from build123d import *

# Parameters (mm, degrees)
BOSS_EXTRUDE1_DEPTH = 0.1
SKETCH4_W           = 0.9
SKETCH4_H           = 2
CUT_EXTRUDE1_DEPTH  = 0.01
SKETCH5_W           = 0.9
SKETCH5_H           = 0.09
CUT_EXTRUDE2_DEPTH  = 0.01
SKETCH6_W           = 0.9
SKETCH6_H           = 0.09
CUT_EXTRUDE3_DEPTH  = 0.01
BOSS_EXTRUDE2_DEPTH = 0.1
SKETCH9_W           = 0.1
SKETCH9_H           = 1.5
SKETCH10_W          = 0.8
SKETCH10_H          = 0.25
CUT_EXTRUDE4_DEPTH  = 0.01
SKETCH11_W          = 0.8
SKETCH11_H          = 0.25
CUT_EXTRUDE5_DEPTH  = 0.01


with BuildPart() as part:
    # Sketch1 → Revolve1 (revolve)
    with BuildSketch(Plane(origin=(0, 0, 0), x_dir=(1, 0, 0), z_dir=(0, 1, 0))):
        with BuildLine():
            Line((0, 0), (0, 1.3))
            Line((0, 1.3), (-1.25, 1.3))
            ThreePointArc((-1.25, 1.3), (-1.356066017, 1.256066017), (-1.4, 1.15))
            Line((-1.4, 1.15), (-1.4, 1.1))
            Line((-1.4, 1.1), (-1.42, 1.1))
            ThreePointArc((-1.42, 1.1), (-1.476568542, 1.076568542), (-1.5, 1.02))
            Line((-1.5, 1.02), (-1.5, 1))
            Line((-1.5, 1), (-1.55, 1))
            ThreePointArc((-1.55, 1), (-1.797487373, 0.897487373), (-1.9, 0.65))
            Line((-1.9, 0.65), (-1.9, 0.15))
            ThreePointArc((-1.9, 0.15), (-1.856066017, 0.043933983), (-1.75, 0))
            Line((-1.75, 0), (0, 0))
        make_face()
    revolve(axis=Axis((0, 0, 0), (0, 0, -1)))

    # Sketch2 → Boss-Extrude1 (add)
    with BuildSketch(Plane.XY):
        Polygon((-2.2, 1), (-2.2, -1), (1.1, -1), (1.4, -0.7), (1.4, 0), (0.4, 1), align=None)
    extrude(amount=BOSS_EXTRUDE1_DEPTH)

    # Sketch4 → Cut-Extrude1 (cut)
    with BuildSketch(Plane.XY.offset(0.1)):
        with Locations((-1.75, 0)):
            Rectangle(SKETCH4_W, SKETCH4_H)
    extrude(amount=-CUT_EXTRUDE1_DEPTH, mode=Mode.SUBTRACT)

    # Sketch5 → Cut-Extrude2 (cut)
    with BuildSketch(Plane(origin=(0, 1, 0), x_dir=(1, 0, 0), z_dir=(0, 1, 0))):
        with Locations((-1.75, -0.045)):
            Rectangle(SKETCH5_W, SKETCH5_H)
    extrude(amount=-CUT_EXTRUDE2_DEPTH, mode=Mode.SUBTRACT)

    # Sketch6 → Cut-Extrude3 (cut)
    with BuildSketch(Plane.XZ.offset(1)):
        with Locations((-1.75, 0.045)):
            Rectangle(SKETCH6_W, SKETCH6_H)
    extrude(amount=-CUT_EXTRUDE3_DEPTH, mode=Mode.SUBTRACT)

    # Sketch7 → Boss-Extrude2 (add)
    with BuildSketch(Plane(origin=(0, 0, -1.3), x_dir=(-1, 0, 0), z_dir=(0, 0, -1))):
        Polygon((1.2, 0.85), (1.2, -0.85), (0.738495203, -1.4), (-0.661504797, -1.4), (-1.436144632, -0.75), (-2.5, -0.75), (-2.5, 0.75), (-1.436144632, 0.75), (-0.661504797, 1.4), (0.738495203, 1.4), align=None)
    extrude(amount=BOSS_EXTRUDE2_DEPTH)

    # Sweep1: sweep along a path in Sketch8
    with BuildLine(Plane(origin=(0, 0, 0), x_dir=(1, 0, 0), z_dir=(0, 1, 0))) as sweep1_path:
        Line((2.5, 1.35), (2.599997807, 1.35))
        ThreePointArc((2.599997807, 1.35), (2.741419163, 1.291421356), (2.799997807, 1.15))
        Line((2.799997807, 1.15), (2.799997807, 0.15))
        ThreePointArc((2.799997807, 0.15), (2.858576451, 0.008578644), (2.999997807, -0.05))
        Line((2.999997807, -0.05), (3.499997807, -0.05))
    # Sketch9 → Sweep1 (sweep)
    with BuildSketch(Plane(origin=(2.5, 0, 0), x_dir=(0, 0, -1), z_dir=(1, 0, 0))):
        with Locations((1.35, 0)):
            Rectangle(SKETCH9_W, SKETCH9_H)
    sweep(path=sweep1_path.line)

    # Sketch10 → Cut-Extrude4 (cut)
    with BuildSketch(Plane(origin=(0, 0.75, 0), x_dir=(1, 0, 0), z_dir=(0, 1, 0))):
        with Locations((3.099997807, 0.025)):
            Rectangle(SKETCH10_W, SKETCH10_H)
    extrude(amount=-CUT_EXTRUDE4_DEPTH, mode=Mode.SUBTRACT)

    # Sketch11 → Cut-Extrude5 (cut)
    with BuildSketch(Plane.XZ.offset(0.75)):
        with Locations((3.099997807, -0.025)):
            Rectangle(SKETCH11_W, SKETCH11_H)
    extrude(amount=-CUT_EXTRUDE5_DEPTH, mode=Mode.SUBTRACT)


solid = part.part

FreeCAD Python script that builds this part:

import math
import FreeCAD as App
import Part
import Sketcher
Q = App.Units.Quantity


def add_polygon(sketch, points):
    """Adds a closed chain of lines whose ends are joined by coincident constraints."""
    first, n = sketch.GeometryCount, len(points)
    for a, b in zip(points, points[1:] + points[:1]):
        sketch.addGeometry(Part.LineSegment(App.Vector(*a, 0), App.Vector(*b, 0)), False)
    for i in range(n):
        sketch.addConstraint(Sketcher.Constraint("Coincident", first + i, 2, first + (i + 1) % n, 1))

doc = App.newDocument("Part")
body = doc.addObject("PartDesign::Body", "Body")

sketch1 = doc.addObject("Sketcher::SketchObject", "Sketch")
body.addObject(sketch1)
sketch1.AttachmentSupport = (doc.XZ_Plane, [""])
sketch1.MapMode = "FlatFace"
sketch1.addGeometry([
    Part.LineSegment(App.Vector(0, 0, 0), App.Vector(0, -1.3, 0)),
    Part.LineSegment(App.Vector(0, -1.3, 0), App.Vector(-1.25, -1.3, 0)),
    Part.ArcOfCircle(Part.Circle(App.Vector(-1.25, -1.15, 0), App.Vector(0, 0, 1), 0.15), math.radians(-180), math.radians(-90)),
    Part.LineSegment(App.Vector(-1.4, -1.15, 0), App.Vector(-1.4, -1.1, 0)),
    Part.LineSegment(App.Vector(-1.4, -1.1, 0), App.Vector(-1.42, -1.1, 0)),
    Part.ArcOfCircle(Part.Circle(App.Vector(-1.42, -1.02, 0), App.Vector(0, 0, 1), 0.08), math.radians(-180), math.radians(-90)),
    Part.LineSegment(App.Vector(-1.5, -1.02, 0), App.Vector(-1.5, -1, 0)),
    Part.LineSegment(App.Vector(-1.5, -1, 0), App.Vector(-1.55, -1, 0)),
    Part.ArcOfCircle(Part.Circle(App.Vector(-1.55, -0.65, 0), App.Vector(0, 0, 1), 0.35), math.radians(-180), math.radians(-90)),
    Part.LineSegment(App.Vector(-1.9, -0.65, 0), App.Vector(-1.9, -0.15, 0)),
    Part.ArcOfCircle(Part.Circle(App.Vector(-1.75, -0.15, 0), App.Vector(0, 0, 1), 0.15), math.radians(90), math.radians(180)),
    Part.LineSegment(App.Vector(-1.75, 0, 0), App.Vector(0, 0, 0)),
], False)
sketch1.addConstraint([
    Sketcher.Constraint("Coincident", 0, 2, 1, 1),
    Sketcher.Constraint("Tangent", 1, 2, 2, 2),
    Sketcher.Constraint("Tangent", 2, 1, 3, 1),
    Sketcher.Constraint("Coincident", 3, 2, 4, 1),
    Sketcher.Constraint("Tangent", 4, 2, 5, 2),
    Sketcher.Constraint("Tangent", 5, 1, 6, 1),
    Sketcher.Constraint("Coincident", 6, 2, 7, 1),
    Sketcher.Constraint("Tangent", 7, 2, 8, 2),
    Sketcher.Constraint("Tangent", 8, 1, 9, 1),
    Sketcher.Constraint("Tangent", 9, 2, 10, 2),
    Sketcher.Constraint("Tangent", 10, 1, 11, 1),
    Sketcher.Constraint("Coincident", 11, 2, 0, 1),
    Sketcher.Constraint("Vertical", 0),
    Sketcher.Constraint("Horizontal", 1),
    Sketcher.Constraint("Vertical", 3),
    Sketcher.Constraint("Horizontal", 4),
    Sketcher.Constraint("Vertical", 6),
    Sketcher.Constraint("Horizontal", 7),
    Sketcher.Constraint("Vertical", 9),
    Sketcher.Constraint("Horizontal", 11),
    Sketcher.Constraint("Coincident", 11, 2, -1, 1),
    Sketcher.Constraint("Equal", 2, 10),
    Sketcher.Constraint("Equal", 7, 3),
    Sketcher.Constraint("Equal", 4, 6),
    Sketcher.Constraint("Radius", 2, Q("0.15 mm")),
    Sketcher.Constraint("Radius", 5, Q("0.08 mm")),
    Sketcher.Constraint("Radius", 8, Q("0.35 mm")),
    Sketcher.Constraint("DistanceY", 0, 2, 0, 1, Q("1.3 mm")),
    Sketcher.Constraint("DistanceY", 9, 1, 9, 2, Q("0.5 mm")),
    Sketcher.Constraint("DistanceX", 1, 2, 1, 1, Q("1.25 mm")),
    Sketcher.Constraint("DistanceX", 4, 2, 4, 1, Q("0.02 mm")),
])
revolution = doc.addObject("PartDesign::Revolution", "Revolution")
body.addObject(revolution)
revolution.Profile = sketch1
revolution.ReferenceAxis = (sketch1, ["V_Axis"])
revolution.Angle = 360

sketch2 = doc.addObject("Sketcher::SketchObject", "Sketch001")
body.addObject(sketch2)
sketch2.AttachmentSupport = (doc.XY_Plane, [""])
sketch2.MapMode = "FlatFace"
add_polygon(sketch2, [(-2.2, 1), (-2.2, -1), (1.1, -1), (1.4, -0.7), (1.4, 0), (0.4, 1)])
sketch2.addConstraint([
    Sketcher.Constraint("Vertical", 0),
    Sketcher.Constraint("Horizontal", 1),
    Sketcher.Constraint("Vertical", 3),
    Sketcher.Constraint("Horizontal", 5),
    Sketcher.Constraint("PointOnObject", 3, 2, -1),
    Sketcher.Constraint("Perpendicular", 2, 4),
    Sketcher.Constraint("DistanceY", 0, 2, 0, 1, Q("2 mm")),
    Sketcher.Constraint("Angle", 2, Q("45 deg")),
    Sketcher.Constraint("DistanceX", 1, 1, 1, 2, Q("3.3 mm")),
    Sketcher.Constraint("DistanceX", 5, 2, 5, 1, Q("2.6 mm")),
    Sketcher.Constraint("DistanceY", 3, 1, 3, 2, Q("0.7 mm")),
    Sketcher.Constraint("DistanceX", 0, 2, -1, 1, Q("2.2 mm")),
])
pad1 = doc.addObject("PartDesign::Pad", "Pad")
body.addObject(pad1)
pad1.Profile = sketch2
pad1.Length = 0.1

sketch3 = doc.addObject("Sketcher::SketchObject", "Sketch002")
body.addObject(sketch3)
sketch3.AttachmentSupport = (doc.XY_Plane, [""])
sketch3.MapMode = "FlatFace"
sketch3.AttachmentOffset = App.Placement(App.Vector(0, 0, 0.1), App.Rotation())
add_polygon(sketch3, [(-2.2, 1), (-2.2, -1), (-1.3, -1), (-1.3, 1)])
sketch3.addConstraint([
    Sketcher.Constraint("Vertical", 0),
    Sketcher.Constraint("Horizontal", 1),
    Sketcher.Constraint("Vertical", 2),
    Sketcher.Constraint("Horizontal", 3),
    Sketcher.Constraint("DistanceY", 0, 2, 0, 1, Q("2 mm")),
    Sketcher.Constraint("DistanceX", 1, 1, 1, 2, Q("0.9 mm")),
    Sketcher.Constraint("DistanceY", 0, 2, -1, 1, Q("1 mm")),
    Sketcher.Constraint("DistanceX", 0, 2, -1, 1, Q("2.2 mm")),
])
pocket1 = doc.addObject("PartDesign::Pocket", "Pocket")
body.addObject(pocket1)
pocket1.Profile = sketch3
pocket1.Length = 0.01

sketch4 = doc.addObject("Sketcher::SketchObject", "Sketch003")
body.addObject(sketch4)
sketch4.AttachmentSupport = (doc.XZ_Plane, [""])
sketch4.MapMode = "FlatFace"
sketch4.AttachmentOffset = App.Placement(App.Vector(0, 0, -1), App.Rotation())
add_polygon(sketch4, [(-2.2, 0), (-2.2, 0.09), (-1.3, 0.09), (-1.3, 0)])
sketch4.addConstraint([
    Sketcher.Constraint("Vertical", 0),
    Sketcher.Constraint("Horizontal", 1),
    Sketcher.Constraint("Vertical", 2),
    Sketcher.Constraint("Horizontal", 3),
    Sketcher.Constraint("PointOnObject", 2, 2, -1),
    Sketcher.Constraint("DistanceX", 1, 1, 1, 2, Q("0.9 mm")),
    Sketcher.Constraint("DistanceY", 0, 1, 0, 2, Q("0.09 mm")),
    Sketcher.Constraint("DistanceX", 0, 2, -1, 1, Q("2.2 mm")),
])
pocket2 = doc.addObject("PartDesign::Pocket", "Pocket001")
body.addObject(pocket2)
pocket2.Profile = sketch4
pocket2.Length = 0.01
pocket2.Reversed = True

sketch5 = doc.addObject("Sketcher::SketchObject", "Sketch004")
body.addObject(sketch5)
sketch5.AttachmentSupport = (doc.XZ_Plane, [""])
sketch5.MapMode = "FlatFace"
sketch5.AttachmentOffset = App.Placement(App.Vector(0, 0, 1), App.Rotation())
add_polygon(sketch5, [(-2.2, 0.09), (-2.2, 0), (-1.3, 0), (-1.3, 0.09)])
sketch5.addConstraint([
    Sketcher.Constraint("Vertical", 0),
    Sketcher.Constraint("Horizontal", 1),
    Sketcher.Constraint("Vertical", 2),
    Sketcher.Constraint("Horizontal", 3),
    Sketcher.Constraint("PointOnObject", 0, 2, -1),
    Sketcher.Constraint("DistanceX", 1, 1, 1, 2, Q("0.9 mm")),
    Sketcher.Constraint("DistanceY", 0, 2, 0, 1, Q("0.09 mm")),
    Sketcher.Constraint("DistanceX", 0, 2, -1, 1, Q("2.2 mm")),
])
pocket3 = doc.addObject("PartDesign::Pocket", "Pocket002")
body.addObject(pocket3)
pocket3.Profile = sketch5
pocket3.Length = 0.01

sketch6 = doc.addObject("Sketcher::SketchObject", "Sketch005")
body.addObject(sketch6)
sketch6.AttachmentSupport = (doc.XY_Plane, [""])
sketch6.MapMode = "FlatFace"
sketch6.AttachmentOffset = App.Placement(App.Vector(0, 0, -1.3), App.Rotation())
add_polygon(sketch6, [(-1.2, -0.8), (-1.2, 0.8), (-0.7, 1.4), (0.7, 1.4), (1.4, 0.8), (2.5, 0.8), (2.5, -0.8), (1.4, -0.8), (0.7, -1.4), (-0.7, -1.4)])
sketch6.addConstraint([
    Sketcher.Constraint("Vertical", 0),
    Sketcher.Constraint("Horizontal", 2),
    Sketcher.Constraint("Horizontal", 4),
    Sketcher.Constraint("Vertical", 5),
    Sketcher.Constraint("Horizontal", 6),
    Sketcher.Constraint("Horizontal", 8),
    Sketcher.Constraint("Symmetric", 3, 2, 6, 2, -1),
    Sketcher.Constraint("Symmetric", 2, 2, 7, 2, -1),
    Sketcher.Constraint("Perpendicular", 1, 3),
    Sketcher.Constraint("Perpendicular", 7, 9),
    Sketcher.Constraint("Vertical", 1, 2, 8, 2),
    Sketcher.Constraint("Angle", 1, Q("50 deg")),
    Sketcher.Constraint("DistanceX", 2, 1, 2, 2, Q("1.4 mm")),
    Sketcher.Constraint("DistanceY", 0, 1, 0, 2, Q("1.7 mm")),
    Sketcher.Constraint("DistanceY", 5, 2, 5, 1, Q("1.5 mm")),
    Sketcher.Constraint("DistanceX", 0, 2, -1, 1, Q("1.2 mm")),
    Sketcher.Constraint("DistanceY", -1, 1, 1, 2, Q("1.4 mm")),
    Sketcher.Constraint("DistanceX", -1, 1, 4, 2, Q("2.5 mm")),
])
pad2 = doc.addObject("PartDesign::Pad", "Pad001")
body.addObject(pad2)
pad2.Profile = sketch6
pad2.Length = 0.1
pad2.Reversed = True

sketch7 = doc.addObject("Sketcher::SketchObject", "Sketch006")
body.addObject(sketch7)
sketch7.AttachmentSupport = (doc.YZ_Plane, [""])
sketch7.MapMode = "FlatFace"
sketch7.AttachmentOffset = App.Placement(App.Vector(0, 0, 2.5), App.Rotation())
add_polygon(sketch7, [(0.75, -1.3), (-0.75, -1.3), (-0.75, -1.4), (0.75, -1.4)])
sketch7.addConstraint([
    Sketcher.Constraint("Horizontal", 0),
    Sketcher.Constraint("Vertical", 1),
    Sketcher.Constraint("Horizontal", 2),
    Sketcher.Constraint("Vertical", 3),
    Sketcher.Constraint("DistanceX", 0, 2, 0, 1, Q("1.5 mm")),
    Sketcher.Constraint("DistanceY", 1, 2, 1, 1, Q("0.1 mm")),
    Sketcher.Constraint("DistanceY", 0, 2, -1, 1, Q("1.3 mm")),
    Sketcher.Constraint("DistanceX", 0, 2, -1, 1, Q("0.75 mm")),
])

sketch8 = doc.addObject("Sketcher::SketchObject", "Sketch007")
body.addObject(sketch8)
sketch8.AttachmentSupport = (doc.XZ_Plane, [""])
sketch8.MapMode = "FlatFace"
sketch8.addGeometry([
    Part.LineSegment(App.Vector(2.5, -1.35, 0), App.Vector(2.6, -1.35, 0)),
    Part.ArcOfCircle(Part.Circle(App.Vector(2.6, -1.15, 0), App.Vector(0, 0, 1), 0.2), math.radians(-90), math.radians(0)),
    Part.LineSegment(App.Vector(2.8, -1.15, 0), App.Vector(2.8, -0.15, 0)),
    Part.ArcOfCircle(Part.Circle(App.Vector(3, -0.15, 0), App.Vector(0, 0, 1), 0.2), math.radians(90), math.radians(180)),
    Part.LineSegment(App.Vector(3, 0.05, 0), App.Vector(3.5, 0.05, 0)),
], False)
sketch8.addConstraint([
    Sketcher.Constraint("Tangent", 0, 2, 1, 1),
    Sketcher.Constraint("Tangent", 1, 2, 2, 1),
    Sketcher.Constraint("Tangent", 2, 2, 3, 2),
    Sketcher.Constraint("Tangent", 3, 1, 4, 1),
    Sketcher.Constraint("Horizontal", 0),
    Sketcher.Constraint("Vertical", 2),
    Sketcher.Constraint("Horizontal", 4),
    Sketcher.Constraint("Equal", 1, 3),
    Sketcher.Constraint("Radius", 1, Q("0.2 mm")),
    Sketcher.Constraint("DistanceY", 2, 1, 2, 2, Q("1 mm")),
    Sketcher.Constraint("DistanceX", 4, 1, 4, 2, Q("0.5 mm")),
    Sketcher.Constraint("DistanceX", -1, 1, 0, 1, Q("2.5 mm")),
    Sketcher.Constraint("DistanceY", 1, 3, -1, 1, Q("1.15 mm")),
    Sketcher.Constraint("DistanceX", 0, 1, 0, 2, Q("0.099998 mm")),
])
doc.recompute()

additivepipe = doc.addObject("PartDesign::AdditivePipe", "AdditivePipe")
body.addObject(additivepipe)
additivepipe.Profile = sketch7
additivepipe.Spine = (sketch8, ["Edge1", "Edge2", "Edge3", "Edge4", "Edge5"])

sketch9 = doc.addObject("Sketcher::SketchObject", "Sketch008")
body.addObject(sketch9)
sketch9.AttachmentSupport = (doc.XZ_Plane, [""])
sketch9.MapMode = "FlatFace"
sketch9.AttachmentOffset = App.Placement(App.Vector(0, 0, -0.75), App.Rotation())
add_polygon(sketch9, [(2.7, -0.15), (2.7, 0.1), (3.5, 0.1), (3.5, -0.15)])
sketch9.addConstraint([
    Sketcher.Constraint("Vertical", 0),
    Sketcher.Constraint("Horizontal", 1),
    Sketcher.Constraint("Vertical", 2),
    Sketcher.Constraint("Horizontal", 3),
    Sketcher.Constraint("DistanceX", 1, 1, 1, 2, Q("0.8 mm")),
    Sketcher.Constraint("DistanceY", 0, 1, 0, 2, Q("0.25 mm")),
    Sketcher.Constraint("DistanceY", -1, 1, 0, 2, Q("0.1 mm")),
    Sketcher.Constraint("DistanceX", -1, 1, 0, 2, Q("2.699998 mm")),
])
pocket4 = doc.addObject("PartDesign::Pocket", "Pocket003")
body.addObject(pocket4)
pocket4.Profile = sketch9
pocket4.Length = 0.01
pocket4.Reversed = True

sketch10 = doc.addObject("Sketcher::SketchObject", "Sketch009")
body.addObject(sketch10)
sketch10.AttachmentSupport = (doc.XZ_Plane, [""])
sketch10.MapMode = "FlatFace"
sketch10.AttachmentOffset = App.Placement(App.Vector(0, 0, 0.75), App.Rotation())
add_polygon(sketch10, [(2.7, 0.1), (2.7, -0.15), (3.5, -0.15), (3.5, 0.1)])
sketch10.addConstraint([
    Sketcher.Constraint("Vertical", 0),
    Sketcher.Constraint("Horizontal", 1),
    Sketcher.Constraint("Vertical", 2),
    Sketcher.Constraint("Horizontal", 3),
    Sketcher.Constraint("DistanceX", 1, 1, 1, 2, Q("0.8 mm")),
    Sketcher.Constraint("DistanceY", 0, 2, 0, 1, Q("0.25 mm")),
    Sketcher.Constraint("DistanceY", -1, 1, 2, 2, Q("0.1 mm")),
    Sketcher.Constraint("DistanceX", -1, 1, 0, 2, Q("2.699998 mm")),
])
pocket5 = doc.addObject("PartDesign::Pocket", "Pocket004")
body.addObject(pocket5)
pocket5.Profile = sketch10
pocket5.Length = 0.01

doc.recompute()
